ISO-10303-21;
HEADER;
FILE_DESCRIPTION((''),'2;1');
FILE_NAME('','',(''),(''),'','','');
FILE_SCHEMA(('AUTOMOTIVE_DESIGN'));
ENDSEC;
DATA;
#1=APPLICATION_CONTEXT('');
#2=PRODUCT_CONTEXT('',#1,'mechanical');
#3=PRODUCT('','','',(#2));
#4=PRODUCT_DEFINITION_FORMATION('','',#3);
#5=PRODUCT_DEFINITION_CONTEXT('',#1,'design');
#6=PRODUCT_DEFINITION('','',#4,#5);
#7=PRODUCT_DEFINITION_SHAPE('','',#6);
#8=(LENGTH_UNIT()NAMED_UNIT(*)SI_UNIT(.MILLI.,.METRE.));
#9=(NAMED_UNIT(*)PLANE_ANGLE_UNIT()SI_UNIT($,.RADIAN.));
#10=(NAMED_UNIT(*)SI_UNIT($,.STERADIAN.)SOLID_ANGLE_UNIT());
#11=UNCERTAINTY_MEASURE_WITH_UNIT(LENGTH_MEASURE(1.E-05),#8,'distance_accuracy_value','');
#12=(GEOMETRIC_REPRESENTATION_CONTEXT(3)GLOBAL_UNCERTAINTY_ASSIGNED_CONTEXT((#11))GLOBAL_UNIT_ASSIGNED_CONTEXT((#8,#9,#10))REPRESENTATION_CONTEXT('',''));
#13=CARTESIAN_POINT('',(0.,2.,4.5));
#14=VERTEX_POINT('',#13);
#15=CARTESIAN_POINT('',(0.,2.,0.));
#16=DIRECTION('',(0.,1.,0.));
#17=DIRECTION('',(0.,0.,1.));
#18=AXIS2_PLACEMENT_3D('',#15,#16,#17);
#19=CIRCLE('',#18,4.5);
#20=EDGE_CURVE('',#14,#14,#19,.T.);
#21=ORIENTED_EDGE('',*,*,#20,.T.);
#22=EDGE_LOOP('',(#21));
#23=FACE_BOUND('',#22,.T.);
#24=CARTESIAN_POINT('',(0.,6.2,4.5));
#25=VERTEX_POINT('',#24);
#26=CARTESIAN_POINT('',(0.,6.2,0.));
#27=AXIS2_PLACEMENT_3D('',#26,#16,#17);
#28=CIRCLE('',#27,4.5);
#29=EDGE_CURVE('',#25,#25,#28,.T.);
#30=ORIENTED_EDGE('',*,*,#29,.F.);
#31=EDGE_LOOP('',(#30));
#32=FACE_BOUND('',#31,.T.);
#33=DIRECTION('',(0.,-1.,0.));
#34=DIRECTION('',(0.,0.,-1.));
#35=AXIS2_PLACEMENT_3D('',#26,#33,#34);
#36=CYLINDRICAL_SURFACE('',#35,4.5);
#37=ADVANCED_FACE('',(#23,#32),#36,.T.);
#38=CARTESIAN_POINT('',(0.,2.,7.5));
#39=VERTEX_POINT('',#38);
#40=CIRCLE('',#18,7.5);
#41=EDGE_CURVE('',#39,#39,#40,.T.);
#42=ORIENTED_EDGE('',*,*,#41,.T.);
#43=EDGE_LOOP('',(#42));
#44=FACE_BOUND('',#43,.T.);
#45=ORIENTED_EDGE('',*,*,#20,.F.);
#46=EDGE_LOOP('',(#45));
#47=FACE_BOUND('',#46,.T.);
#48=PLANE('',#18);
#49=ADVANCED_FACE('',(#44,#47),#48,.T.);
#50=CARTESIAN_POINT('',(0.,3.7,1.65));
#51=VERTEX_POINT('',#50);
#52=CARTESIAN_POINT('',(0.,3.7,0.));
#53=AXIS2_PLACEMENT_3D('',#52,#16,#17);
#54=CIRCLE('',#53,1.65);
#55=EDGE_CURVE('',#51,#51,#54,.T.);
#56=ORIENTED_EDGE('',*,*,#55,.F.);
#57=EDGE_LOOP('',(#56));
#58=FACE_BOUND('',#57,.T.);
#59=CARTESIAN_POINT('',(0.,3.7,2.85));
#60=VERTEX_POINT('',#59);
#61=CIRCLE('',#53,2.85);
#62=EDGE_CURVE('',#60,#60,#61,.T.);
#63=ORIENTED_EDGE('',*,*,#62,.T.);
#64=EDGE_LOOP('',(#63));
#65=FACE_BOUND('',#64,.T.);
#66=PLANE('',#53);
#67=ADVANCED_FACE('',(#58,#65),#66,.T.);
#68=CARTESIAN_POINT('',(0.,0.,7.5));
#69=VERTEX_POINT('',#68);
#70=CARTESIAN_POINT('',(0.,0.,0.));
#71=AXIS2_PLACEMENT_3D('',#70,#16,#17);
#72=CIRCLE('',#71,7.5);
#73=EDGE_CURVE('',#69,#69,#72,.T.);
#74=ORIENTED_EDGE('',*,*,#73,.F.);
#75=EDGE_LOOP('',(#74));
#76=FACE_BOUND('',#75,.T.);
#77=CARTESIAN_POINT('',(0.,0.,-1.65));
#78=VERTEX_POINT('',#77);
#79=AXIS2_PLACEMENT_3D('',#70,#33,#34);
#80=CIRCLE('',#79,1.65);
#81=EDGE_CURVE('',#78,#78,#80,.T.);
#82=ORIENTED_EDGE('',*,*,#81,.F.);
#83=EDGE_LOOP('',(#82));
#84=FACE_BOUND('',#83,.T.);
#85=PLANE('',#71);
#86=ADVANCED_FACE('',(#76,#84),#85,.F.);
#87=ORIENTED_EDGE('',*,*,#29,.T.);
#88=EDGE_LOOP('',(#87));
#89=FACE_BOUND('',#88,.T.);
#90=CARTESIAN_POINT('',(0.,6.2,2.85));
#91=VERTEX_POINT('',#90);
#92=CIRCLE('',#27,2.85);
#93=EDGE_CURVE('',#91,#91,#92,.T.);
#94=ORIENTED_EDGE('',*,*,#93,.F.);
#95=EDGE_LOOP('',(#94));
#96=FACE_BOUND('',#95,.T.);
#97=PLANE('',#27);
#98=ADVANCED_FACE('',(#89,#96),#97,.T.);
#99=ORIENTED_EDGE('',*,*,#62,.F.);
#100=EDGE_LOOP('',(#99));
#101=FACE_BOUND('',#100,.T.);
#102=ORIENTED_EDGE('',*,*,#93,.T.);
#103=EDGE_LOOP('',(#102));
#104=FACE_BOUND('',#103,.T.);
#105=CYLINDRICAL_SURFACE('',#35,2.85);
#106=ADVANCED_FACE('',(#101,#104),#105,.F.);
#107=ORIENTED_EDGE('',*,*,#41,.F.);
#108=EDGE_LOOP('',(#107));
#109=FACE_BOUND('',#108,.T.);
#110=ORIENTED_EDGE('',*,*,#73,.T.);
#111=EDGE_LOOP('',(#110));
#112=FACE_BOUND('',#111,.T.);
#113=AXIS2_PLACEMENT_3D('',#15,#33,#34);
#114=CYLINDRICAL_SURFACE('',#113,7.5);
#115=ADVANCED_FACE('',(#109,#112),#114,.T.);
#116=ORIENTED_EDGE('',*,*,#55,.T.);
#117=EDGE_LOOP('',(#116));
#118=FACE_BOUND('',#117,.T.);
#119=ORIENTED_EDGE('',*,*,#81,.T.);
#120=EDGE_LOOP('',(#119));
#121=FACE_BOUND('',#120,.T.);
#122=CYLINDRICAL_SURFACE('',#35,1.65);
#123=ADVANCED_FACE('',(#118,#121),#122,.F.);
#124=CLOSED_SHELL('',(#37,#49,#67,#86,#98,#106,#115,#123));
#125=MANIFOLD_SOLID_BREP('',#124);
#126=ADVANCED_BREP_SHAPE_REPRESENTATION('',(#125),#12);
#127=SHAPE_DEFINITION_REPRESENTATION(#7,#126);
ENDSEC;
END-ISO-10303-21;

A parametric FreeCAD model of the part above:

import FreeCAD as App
import Part
import Sketcher
from FreeCAD import Vector

doc = App.newDocument("Part")
params = doc.addObject("Spreadsheet::Sheet", "Params")
for row, (alias, value) in enumerate([
    ("sketch1_diameter", "15 mm"),
    ("pad1_length", "2 mm"),
    ("sketch2_diameter", "9 mm"),
    ("sketch2_diameter2", "5.7 mm"),
    ("pad2_length", "4.2 mm"),
    ("sketch3_diameter", "5.7 mm"),
    ("pad3_length", "1.7 mm"),
    ("sketch4_diameter", "3.3 mm"),
], start=1):
    params.set(f"A{row}", alias)
    params.set(f"B{row}", "=" + value)
    params.setAlias(f"B{row}", alias)

body = doc.addObject("PartDesign::Body", "Body")

sketch1 = body.newObject("Sketcher::SketchObject", "Sketch")
sketch1.AttachmentSupport = (doc.getObject("XZ_Plane"), [""])
sketch1.MapMode = "FlatFace"
sketch1.addGeometry(Part.Circle(Vector(0, 0, 0), Vector(0, 0, 1), 8), False)
sketch1.addConstraint(Sketcher.Constraint("Coincident", 0, 3, -1, 1))
sketch1.addConstraint(Sketcher.Constraint("Diameter", 0, 15.0))
sketch1.setExpression("Constraints[1]", "Params.sketch1_diameter")
pad1 = body.newObject("PartDesign::Pad", "Pad")
pad1.Profile = sketch1
pad1.setExpression("Length", "Params.pad1_length")
pad1.Reversed = True

sketch2 = body.newObject("Sketcher::SketchObject", "Sketch001")
sketch2.AttachmentSupport = (doc.getObject("XZ_Plane"), [""])
sketch2.MapMode = "FlatFace"
sketch2.AttachmentOffset = App.Placement(Vector(0, 0, -2), App.Rotation())
sketch2.addGeometry(Part.Circle(Vector(0, 0, 0), Vector(0, 0, 1), 4.5), False)
sketch2.addGeometry(Part.Circle(Vector(0, 0, 0), Vector(0, 0, 1), 2.9), False)
sketch2.addConstraint(Sketcher.Constraint("Coincident", 0, 3, -1, 1))
sketch2.addConstraint(Sketcher.Constraint("Coincident", 1, 3, -1, 1))
sketch2.addConstraint(Sketcher.Constraint("Diameter", 0, 9.0))
sketch2.addConstraint(Sketcher.Constraint("Diameter", 1, 5.7))
sketch2.setExpression("Constraints[2]", "Params.sketch2_diameter")
sketch2.setExpression("Constraints[3]", "Params.sketch2_diameter2")
pad2 = body.newObject("PartDesign::Pad", "Pad001")
pad2.Profile = sketch2
pad2.setExpression("Length", "Params.pad2_length")
pad2.Reversed = True

sketch3 = body.newObject("Sketcher::SketchObject", "Sketch002")
sketch3.AttachmentSupport = (doc.getObject("XZ_Plane"), [""])
sketch3.MapMode = "FlatFace"
sketch3.AttachmentOffset = App.Placement(Vector(0, 0, -2), App.Rotation())
sketch3.addGeometry(Part.Circle(Vector(0, 0, 0), Vector(0, 0, 1), 2.9), False)
sketch3.addConstraint(Sketcher.Constraint("Coincident", 0, 3, -1, 1))
sketch3.addConstraint(Sketcher.Constraint("Diameter", 0, 5.7))
sketch3.setExpression("Constraints[1]", "Params.sketch3_diameter")
pad3 = body.newObject("PartDesign::Pad", "Pad002")
pad3.Profile = sketch3
pad3.setExpression("Length", "Params.pad3_length")
pad3.Reversed = True

sketch4 = body.newObject("Sketcher::SketchObject", "Sketch003")
sketch4.AttachmentSupport = (doc.getObject("XZ_Plane"), [""])
sketch4.MapMode = "FlatFace"
sketch4.addGeometry(Part.Circle(Vector(0, 0, 0), Vector(0, 0, 1), 1.6), False)
sketch4.addConstraint(Sketcher.Constraint("Coincident", 0, 3, -1, 1))
sketch4.addConstraint(Sketcher.Constraint("Diameter", 0, 3.3))
sketch4.setExpression("Constraints[1]", "Params.sketch4_diameter")
pocket1 = body.newObject("PartDesign::Pocket", "Pocket")
pocket1.Profile = sketch4
pocket1.Type = "ThroughAll"

doc.recompute()
